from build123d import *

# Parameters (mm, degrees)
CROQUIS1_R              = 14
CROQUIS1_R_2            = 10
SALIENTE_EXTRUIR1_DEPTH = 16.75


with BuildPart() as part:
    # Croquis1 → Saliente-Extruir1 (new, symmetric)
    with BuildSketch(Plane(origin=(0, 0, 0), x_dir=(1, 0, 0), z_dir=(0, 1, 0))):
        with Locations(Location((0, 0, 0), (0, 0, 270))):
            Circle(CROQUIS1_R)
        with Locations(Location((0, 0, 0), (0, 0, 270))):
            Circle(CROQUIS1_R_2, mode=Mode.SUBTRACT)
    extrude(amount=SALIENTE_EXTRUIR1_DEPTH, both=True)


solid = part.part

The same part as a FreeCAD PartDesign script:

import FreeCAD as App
import Part
import Sketcher
from FreeCAD import Vector
Q = App.Units.Quantity

doc = App.newDocument("Part")
body = doc.addObject("PartDesign::Body", "Body")

# Sketch on XZ plane
sketch1 = doc.addObject("Sketcher::SketchObject", "Sketch")
body.addObject(sketch1)
sketch1.AttachmentSupport = (doc.XZ_Plane, [""])
sketch1.MapMode = "FlatFace"
sketch1.addGeometry([
    Part.Circle(Vector(0, 0, 0), Vector(0, 0, 1), 14),
    Part.Circle(Vector(0, 0, 0), Vector(0, 0, 1), 10),
], False)
sketch1.addConstraint([
    Sketcher.Constraint("Coincident", 0, 3, -1, 1),
    Sketcher.Constraint("Coincident", 1, 3, -1, 1),
    Sketcher.Constraint("Diameter", 0, Q("28 mm")),
    Sketcher.Constraint("Diameter", 1, Q("20 mm")),
])
pad1 = doc.addObject("PartDesign::Pad", "Pad")
body.addObject(pad1)
pad1.Profile = sketch1
pad1.Length = 33.5
pad1.Midplane = True

doc.recompute()
